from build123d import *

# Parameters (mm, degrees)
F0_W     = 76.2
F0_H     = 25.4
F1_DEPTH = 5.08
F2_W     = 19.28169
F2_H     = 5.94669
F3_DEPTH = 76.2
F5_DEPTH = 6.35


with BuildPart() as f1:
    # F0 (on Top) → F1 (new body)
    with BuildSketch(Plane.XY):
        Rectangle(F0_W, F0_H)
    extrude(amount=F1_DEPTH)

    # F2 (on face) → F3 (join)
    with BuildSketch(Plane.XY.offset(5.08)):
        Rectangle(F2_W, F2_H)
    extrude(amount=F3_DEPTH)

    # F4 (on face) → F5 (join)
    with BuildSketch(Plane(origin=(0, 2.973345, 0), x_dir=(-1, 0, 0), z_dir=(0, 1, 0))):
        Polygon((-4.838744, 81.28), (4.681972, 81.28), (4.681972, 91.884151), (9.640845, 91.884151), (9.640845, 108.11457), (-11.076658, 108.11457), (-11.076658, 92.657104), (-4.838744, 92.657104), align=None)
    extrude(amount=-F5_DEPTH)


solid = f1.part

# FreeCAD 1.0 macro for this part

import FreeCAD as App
import Part
import Sketcher
Q = App.Units.Quantity


def add_polygon(sketch, points):
    """Adds a closed chain of lines whose ends are joined by coincident constraints."""
    first, n = sketch.GeometryCount, len(points)
    for a, b in zip(points, points[1:] + points[:1]):
        sketch.addGeometry(Part.LineSegment(App.Vector(*a, 0), App.Vector(*b, 0)), False)
    for i in range(n):
        sketch.addConstraint(Sketcher.Constraint("Coincident", first + i, 2, first + (i + 1) % n, 1))

doc = App.newDocument("Part")
body = doc.addObject("PartDesign::Body", "Body")

# Sketch on XY plane
sketch1 = doc.addObject("Sketcher::SketchObject", "Sketch")
body.addObject(sketch1)
sketch1.AttachmentSupport = (doc.XY_Plane, [""])
sketch1.MapMode = "FlatFace"
add_polygon(sketch1, [(-38.1, 12.7), (-38.1, -12.7), (38.1, -12.7), (38.1, 12.7)])  # lines 0-3
sketch1.addConstraint([
    Sketcher.Constraint("Vertical", 0),
    Sketcher.Constraint("Horizontal", 1),
    Sketcher.Constraint("Vertical", 2),
    Sketcher.Constraint("Horizontal", 3),
    Sketcher.Constraint("Symmetric", 0, 2, 2, 2, -1, 1),
    Sketcher.Constraint("DistanceX", 1, 1, 1, 2, Q("3 in")),
    Sketcher.Constraint("DistanceY", 0, 2, 0, 1, Q("1 in")),
])
pad1 = doc.addObject("PartDesign::Pad", "Pad")
body.addObject(pad1)
pad1.Profile = sketch1
pad1.Length = Q("0.2 in")

# Sketch on XY plane
sketch2 = doc.addObject("Sketcher::SketchObject", "Sketch001")
body.addObject(sketch2)
sketch2.AttachmentSupport = (doc.XY_Plane, [""])
sketch2.MapMode = "FlatFace"
sketch2.AttachmentOffset = App.Placement(App.Vector(0, 0, 0.2 * 25.4), App.Rotation())
add_polygon(sketch2, [(-9.640845, 2.973345), (-9.640845, -2.973345), (9.640845, -2.973345), (9.640845, 2.973345)])  # lines 0-3
sketch2.addConstraint([
    Sketcher.Constraint("Vertical", 0),
    Sketcher.Constraint("Horizontal", 1),
    Sketcher.Constraint("Vertical", 2),
    Sketcher.Constraint("Horizontal", 3),
    Sketcher.Constraint("Symmetric", 0, 2, 2, 2, -1, 1),
    Sketcher.Constraint("DistanceX", 1, 1, 1, 2, Q("19.28169 mm")),
    Sketcher.Constraint("DistanceY", 0, 2, 0, 1, Q("5.94669 mm")),
])
pad2 = doc.addObject("PartDesign::Pad", "Pad001")
body.addObject(pad2)
pad2.Profile = sketch2
pad2.Length = Q("3 in")

# Sketch on XZ plane
sketch3 = doc.addObject("Sketcher::SketchObject", "Sketch002")
body.addObject(sketch3)
sketch3.AttachmentSupport = (doc.XZ_Plane, [""])
sketch3.MapMode = "FlatFace"
sketch3.AttachmentOffset = App.Placement(App.Vector(0, 0, -2.973345), App.Rotation())
add_polygon(sketch3, [(4.838744, 81.28), (-4.681972, 81.28), (-4.681972, 91.884151), (-9.640845, 91.884151), (-9.640845, 108.11457), (11.076658, 108.11457), (11.076658, 92.657104), (4.838744, 92.657104)])  # lines 0-7
sketch3.addConstraint([
    Sketcher.Constraint("Horizontal", 0),
    Sketcher.Constraint("Vertical", 1),
    Sketcher.Constraint("Horizontal", 2),
    Sketcher.Constraint("Vertical", 3),
    Sketcher.Constraint("Horizontal", 4),
    Sketcher.Constraint("Vertical", 5),
    Sketcher.Constraint("Horizontal", 6),
    Sketcher.Constraint("Vertical", 7),
    Sketcher.Constraint("DistanceY", -1, 1, 0, 2, Q("3.2 in")),
    Sketcher.Constraint("DistanceY", 1, 1, 1, 2, Q("10.604151 mm")),
    Sketcher.Constraint("DistanceY", 3, 1, 3, 2, Q("16.230419 mm")),
    Sketcher.Constraint("DistanceX", 0, 2, 0, 1, Q("9.520716 mm")),
    Sketcher.Constraint("DistanceX", 2, 2, 2, 1, Q("4.958873 mm")),
    Sketcher.Constraint("DistanceX", 4, 1, 4, 2, Q("20.717503 mm")),
    Sketcher.Constraint("DistanceY", 5, 2, 5, 1, Q("15.457466 mm")),
    Sketcher.Constraint("DistanceX", 0, 2, -1, 1, Q("4.681972 mm")),
])
pad3 = doc.addObject("PartDesign::Pad", "Pad002")
body.addObject(pad3)
pad3.Profile = sketch3
pad3.Length = Q("0.25 in")

doc.recompute()
